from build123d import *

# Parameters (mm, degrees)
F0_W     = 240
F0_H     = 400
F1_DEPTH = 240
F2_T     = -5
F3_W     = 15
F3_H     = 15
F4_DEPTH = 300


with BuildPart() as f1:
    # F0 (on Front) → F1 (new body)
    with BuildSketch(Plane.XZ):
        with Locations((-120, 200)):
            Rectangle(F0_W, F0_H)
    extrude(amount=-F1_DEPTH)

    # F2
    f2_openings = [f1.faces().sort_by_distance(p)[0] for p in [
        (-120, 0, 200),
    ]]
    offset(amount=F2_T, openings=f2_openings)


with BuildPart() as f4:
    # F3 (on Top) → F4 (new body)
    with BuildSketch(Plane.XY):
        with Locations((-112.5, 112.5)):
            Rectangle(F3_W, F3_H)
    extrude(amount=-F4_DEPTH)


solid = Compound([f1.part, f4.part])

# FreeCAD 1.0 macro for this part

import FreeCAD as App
import Part
import Sketcher

V = App.Vector


def faces_at(feature, points):
    """Names of the faces that lie closest to the given points."""
    faces = feature.Shape.Faces
    near = lambda p: min(range(len(faces)), key=lambda i: faces[i].distToShape(Part.Vertex(*p))[0])
    return sorted({f"Face{near(p) + 1}" for p in points})


def add_polygon(sketch, points):
    """Adds a closed chain of lines whose ends are joined by coincident constraints."""
    first, n = sketch.GeometryCount, len(points)
    for a, b in zip(points, points[1:] + points[:1]):
        sketch.addGeometry(Part.LineSegment(App.Vector(*a, 0), App.Vector(*b, 0)), False)
    for i in range(n):
        sketch.addConstraint(Sketcher.Constraint("Coincident", first + i, 2, first + (i + 1) % n, 1))

doc = App.newDocument("Part")
body = doc.addObject("PartDesign::Body", "Body")

sketch1 = body.newObject("Sketcher::SketchObject", "Sketch")
sketch1.AttachmentSupport = (doc.getObject("XZ_Plane"), [""])
sketch1.MapMode = "FlatFace"
add_polygon(sketch1, [(-240, 400), (-240, 0), (0, 0), (0, 400)])
sketch1.addConstraint([
    Sketcher.Constraint("Vertical", 0),
    Sketcher.Constraint("Horizontal", 1),
    Sketcher.Constraint("Vertical", 2),
    Sketcher.Constraint("Horizontal", 3),
    Sketcher.Constraint("Coincident", 1, 2, -1, 1),
    Sketcher.Constraint("DistanceX", 1, 1, 1, 2, 240.0),
    Sketcher.Constraint("DistanceY", 0, 2, 0, 1, 400.0),
])
pad1 = body.newObject("PartDesign::Pad", "Pad")
pad1.Profile = sketch1
pad1.Length = 240
pad1.Reversed = True
doc.recompute()

thickness = body.newObject("PartDesign::Thickness", "Thickness")
thickness.Base = (pad1, faces_at(pad1, [(-120, 0, 200)]))
thickness.Value = 5
thickness.Reversed = True
thickness.Join = "Arc"
body2 = doc.addObject("PartDesign::Body", "Body001")

sketch2 = body2.newObject("Sketcher::SketchObject", "Sketch001")
sketch2.AttachmentSupport = (doc.getObject("XY_Plane001"), [""])
sketch2.MapMode = "FlatFace"
add_polygon(sketch2, [(-120, 120), (-120, 105), (-105, 105), (-105, 120)])
sketch2.addConstraint([
    Sketcher.Constraint("Vertical", 0),
    Sketcher.Constraint("Horizontal", 1),
    Sketcher.Constraint("Vertical", 2),
    Sketcher.Constraint("Horizontal", 3),
    Sketcher.Constraint("Equal", 3, 0),
    Sketcher.Constraint("DistanceX", 1, 1, 1, 2, 15.0),
    Sketcher.Constraint("DistanceX", 0, 2, -1, 1, 120.0),
    Sketcher.Constraint("DistanceY", -1, 1, 0, 2, 105.0),
])
pad2 = body2.newObject("PartDesign::Pad", "Pad001")
pad2.Profile = sketch2
pad2.Length = 300
pad2.Reversed = True

doc.recompute()
